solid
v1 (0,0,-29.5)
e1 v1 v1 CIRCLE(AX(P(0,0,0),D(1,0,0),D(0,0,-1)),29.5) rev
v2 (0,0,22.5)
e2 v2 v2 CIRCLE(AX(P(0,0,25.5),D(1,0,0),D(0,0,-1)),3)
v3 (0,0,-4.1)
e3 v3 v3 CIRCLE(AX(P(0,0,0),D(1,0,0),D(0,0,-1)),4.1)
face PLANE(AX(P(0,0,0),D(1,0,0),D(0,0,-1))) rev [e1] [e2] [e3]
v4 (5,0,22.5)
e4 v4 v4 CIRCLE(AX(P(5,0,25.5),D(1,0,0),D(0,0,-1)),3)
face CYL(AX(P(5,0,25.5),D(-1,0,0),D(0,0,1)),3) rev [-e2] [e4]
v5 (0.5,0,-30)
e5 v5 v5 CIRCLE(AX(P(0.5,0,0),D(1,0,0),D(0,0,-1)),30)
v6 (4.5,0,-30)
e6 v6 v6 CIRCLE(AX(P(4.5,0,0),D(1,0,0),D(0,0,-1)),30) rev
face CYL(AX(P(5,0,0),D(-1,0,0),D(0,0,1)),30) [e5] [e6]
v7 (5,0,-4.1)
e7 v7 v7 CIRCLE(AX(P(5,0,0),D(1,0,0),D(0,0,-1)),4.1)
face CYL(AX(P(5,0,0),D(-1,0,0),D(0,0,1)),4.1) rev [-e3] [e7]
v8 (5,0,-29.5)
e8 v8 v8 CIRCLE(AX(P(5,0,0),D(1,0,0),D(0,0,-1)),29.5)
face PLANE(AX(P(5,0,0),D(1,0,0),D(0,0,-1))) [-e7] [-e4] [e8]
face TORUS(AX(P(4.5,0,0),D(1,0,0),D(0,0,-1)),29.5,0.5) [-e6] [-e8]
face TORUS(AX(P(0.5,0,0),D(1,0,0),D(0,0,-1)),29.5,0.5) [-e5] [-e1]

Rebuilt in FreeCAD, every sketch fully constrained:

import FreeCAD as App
import Part
import Sketcher

V = App.Vector


def edges_at(feature, points):
    """Names of the edges that pass closest to the given points."""
    edges = feature.Shape.Edges
    near = lambda p: min(range(len(edges)), key=lambda i: edges[i].distToShape(Part.Vertex(*p))[0])
    return sorted({f"Edge{near(p) + 1}" for p in points})

doc = App.newDocument("Part")
body = doc.addObject("PartDesign::Body", "Body")

# Sketch on YZ plane
sketch1 = body.newObject("Sketcher::SketchObject", "Sketch")
sketch1.AttachmentSupport = (doc.getObject("YZ_Plane"), [""])
sketch1.MapMode = "FlatFace"
sketch1.addGeometry(Part.Circle(V(0, 0, 0), V(0, 0, 1), 30), False)
sketch1.addGeometry(Part.Circle(V(0, 25.5, 0), V(0, 0, 1), 3), False)
sketch1.addGeometry(Part.Circle(V(0, 0, 0), V(0, 0, 1), 4.1), False)
sketch1.addConstraint(Sketcher.Constraint("Coincident", 0, 3, -1, 1))
sketch1.addConstraint(Sketcher.Constraint("Coincident", 2, 3, -1, 1))
sketch1.addConstraint(Sketcher.Constraint("PointOnObject", 1, 3, -2))
sketch1.addConstraint(Sketcher.Constraint("Diameter", 0, 60.0))
sketch1.addConstraint(Sketcher.Constraint("Diameter", 1, 6.0))
sketch1.addConstraint(Sketcher.Constraint("Diameter", 2, 8.2))
sketch1.addConstraint(Sketcher.Constraint("DistanceY", -1, 1, 1, 3, 25.5))
pad1 = body.newObject("PartDesign::Pad", "Pad")
pad1.Profile = sketch1
pad1.Length = 5
doc.recompute()

fillet = body.newObject("PartDesign::Fillet", "Fillet")
fillet.Base = (pad1, edges_at(pad1, [(0, 0, 30), (5, 0, 30)]))
fillet.Radius = 0.5

doc.recompute()
